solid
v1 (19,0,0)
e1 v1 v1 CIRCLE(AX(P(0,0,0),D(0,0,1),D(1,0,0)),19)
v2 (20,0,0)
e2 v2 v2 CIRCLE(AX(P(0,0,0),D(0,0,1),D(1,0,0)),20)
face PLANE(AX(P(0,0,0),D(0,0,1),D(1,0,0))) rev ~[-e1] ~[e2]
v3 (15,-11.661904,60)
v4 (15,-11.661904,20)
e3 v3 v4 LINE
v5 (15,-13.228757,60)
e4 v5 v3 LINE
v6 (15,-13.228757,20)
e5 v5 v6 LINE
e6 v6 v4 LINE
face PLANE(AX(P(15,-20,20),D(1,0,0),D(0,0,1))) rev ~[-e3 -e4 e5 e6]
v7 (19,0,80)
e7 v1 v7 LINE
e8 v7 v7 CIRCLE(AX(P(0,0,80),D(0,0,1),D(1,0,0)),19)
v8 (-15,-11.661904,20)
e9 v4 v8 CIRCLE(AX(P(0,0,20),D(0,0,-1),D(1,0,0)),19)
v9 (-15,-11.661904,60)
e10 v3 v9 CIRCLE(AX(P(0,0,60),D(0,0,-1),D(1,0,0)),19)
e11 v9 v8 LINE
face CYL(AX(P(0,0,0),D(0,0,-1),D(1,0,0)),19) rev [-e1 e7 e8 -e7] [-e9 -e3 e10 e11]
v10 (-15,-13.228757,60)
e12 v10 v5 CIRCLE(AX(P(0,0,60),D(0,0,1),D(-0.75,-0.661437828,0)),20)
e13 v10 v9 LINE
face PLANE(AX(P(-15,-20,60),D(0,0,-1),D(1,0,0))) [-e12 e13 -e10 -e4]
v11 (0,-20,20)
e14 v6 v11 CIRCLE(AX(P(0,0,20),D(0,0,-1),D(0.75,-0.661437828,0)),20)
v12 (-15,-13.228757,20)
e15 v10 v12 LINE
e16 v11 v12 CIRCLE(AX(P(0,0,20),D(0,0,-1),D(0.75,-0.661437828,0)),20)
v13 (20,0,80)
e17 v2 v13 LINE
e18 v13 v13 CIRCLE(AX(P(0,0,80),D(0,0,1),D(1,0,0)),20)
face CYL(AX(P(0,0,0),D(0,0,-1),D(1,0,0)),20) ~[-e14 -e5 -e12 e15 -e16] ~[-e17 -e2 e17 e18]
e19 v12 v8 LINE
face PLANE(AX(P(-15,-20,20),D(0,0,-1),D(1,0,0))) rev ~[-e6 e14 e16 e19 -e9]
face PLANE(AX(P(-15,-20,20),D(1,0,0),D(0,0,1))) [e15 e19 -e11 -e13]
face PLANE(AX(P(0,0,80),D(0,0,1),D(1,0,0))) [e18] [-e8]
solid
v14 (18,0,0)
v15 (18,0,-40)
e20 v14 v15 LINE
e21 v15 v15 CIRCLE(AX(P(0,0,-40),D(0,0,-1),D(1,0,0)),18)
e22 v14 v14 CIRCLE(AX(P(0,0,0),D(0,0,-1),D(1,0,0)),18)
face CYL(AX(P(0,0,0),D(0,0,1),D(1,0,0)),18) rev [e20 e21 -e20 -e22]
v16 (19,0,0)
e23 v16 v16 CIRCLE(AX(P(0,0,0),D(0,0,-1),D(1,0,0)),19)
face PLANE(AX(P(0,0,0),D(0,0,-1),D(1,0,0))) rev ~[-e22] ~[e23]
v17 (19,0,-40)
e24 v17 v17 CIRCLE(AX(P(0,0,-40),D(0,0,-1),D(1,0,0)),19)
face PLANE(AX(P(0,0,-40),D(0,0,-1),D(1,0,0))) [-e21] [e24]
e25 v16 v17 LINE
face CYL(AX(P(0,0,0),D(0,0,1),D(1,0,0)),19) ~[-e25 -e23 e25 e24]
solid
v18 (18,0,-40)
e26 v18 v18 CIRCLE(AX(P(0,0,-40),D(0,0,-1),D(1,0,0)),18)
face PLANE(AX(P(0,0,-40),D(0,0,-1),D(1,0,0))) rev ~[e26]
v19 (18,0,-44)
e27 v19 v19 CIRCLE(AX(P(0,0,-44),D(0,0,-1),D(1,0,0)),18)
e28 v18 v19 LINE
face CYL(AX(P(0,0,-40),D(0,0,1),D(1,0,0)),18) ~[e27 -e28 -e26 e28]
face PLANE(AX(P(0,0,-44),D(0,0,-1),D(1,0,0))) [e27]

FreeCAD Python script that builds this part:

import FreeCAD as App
import Part
import Sketcher

V = App.Vector


def add_polygon(sketch, points):
    """Adds a closed chain of lines whose ends are joined by coincident constraints."""
    first, n = sketch.GeometryCount, len(points)
    for a, b in zip(points, points[1:] + points[:1]):
        sketch.addGeometry(Part.LineSegment(App.Vector(*a, 0), App.Vector(*b, 0)), False)
    for i in range(n):
        sketch.addConstraint(Sketcher.Constraint("Coincident", first + i, 2, first + (i + 1) % n, 1))

doc = App.newDocument("Part")
body = doc.addObject("PartDesign::Body", "Body")

sketch1 = doc.addObject("Sketcher::SketchObject", "Sketch")
body.addObject(sketch1)
sketch1.AttachmentSupport = (doc.XY_Plane, [""])
sketch1.MapMode = "FlatFace"
sketch1.addGeometry([
    Part.Circle(V(0, 0, 0), V(0, 0, 1), 20),
    Part.Circle(V(0, 0, 0), V(0, 0, 1), 19),
], False)
sketch1.addConstraint([
    Sketcher.Constraint("Coincident", 0, 3, -1, 1),
    Sketcher.Constraint("Coincident", 1, 3, -1, 1),
    Sketcher.Constraint("Diameter", 0, 40.0),
    Sketcher.Constraint("Diameter", 1, 38.0),
])
pad1 = doc.addObject("PartDesign::Pad", "Pad")
body.addObject(pad1)
pad1.Profile = sketch1
pad1.Length = 80

sketch2 = doc.addObject("Sketcher::SketchObject", "Sketch001")
body.addObject(sketch2)
sketch2.AttachmentSupport = (doc.XZ_Plane, [""])
sketch2.MapMode = "FlatFace"
sketch2.AttachmentOffset = App.Placement(V(0, 0, 20), App.Rotation())
add_polygon(sketch2, [(-15, 60), (-15, 20), (15, 20), (15, 60)])
sketch2.addConstraint([
    Sketcher.Constraint("Vertical", 0),
    Sketcher.Constraint("Horizontal", 1),
    Sketcher.Constraint("Vertical", 2),
    Sketcher.Constraint("Horizontal", 3),
    Sketcher.Constraint("DistanceX", 1, 1, 1, 2, 30.0),
    Sketcher.Constraint("DistanceY", 0, 2, 0, 1, 40.0),
    Sketcher.Constraint("DistanceX", 0, 2, -1, 1, 15.0),
    Sketcher.Constraint("DistanceY", -1, 1, 0, 2, 20.0),
])
pocket1 = doc.addObject("PartDesign::Pocket", "Pocket")
body.addObject(pocket1)
pocket1.Profile = sketch2
pocket1.Length = 25

sketch3 = doc.addObject("Sketcher::SketchObject", "Sketch002")
body.addObject(sketch3)
sketch3.AttachmentSupport = (doc.XZ_Plane, [""])
sketch3.MapMode = "FlatFace"
sketch3.AttachmentOffset = App.Placement(V(0, 0, 20), App.Rotation())
add_polygon(sketch3, [(-12.5, 45), (-12.5, 10), (12.5, 10), (12.5, 45)])
sketch3.addConstraint([
    Sketcher.Constraint("Vertical", 0),
    Sketcher.Constraint("Horizontal", 1),
    Sketcher.Constraint("Vertical", 2),
    Sketcher.Constraint("Horizontal", 3),
    Sketcher.Constraint("DistanceX", 1, 1, 1, 2, 25.0),
    Sketcher.Constraint("DistanceY", 0, 2, 0, 1, 35.0),
    Sketcher.Constraint("DistanceY", -1, 1, 0, 2, 10.0),
    Sketcher.Constraint("DistanceX", 0, 2, -1, 1, 12.5),
])
pocket2 = doc.addObject("PartDesign::Pocket", "Pocket001")
body.addObject(pocket2)
pocket2.Profile = sketch3
pocket2.Length = 10
pocket2.Reversed = True
body2 = doc.addObject("PartDesign::Body", "Body001")

sketch4 = doc.addObject("Sketcher::SketchObject", "Sketch003")
body2.addObject(sketch4)
sketch4.AttachmentSupport = (doc.getObject("XY_Plane001"), [""])
sketch4.MapMode = "FlatFace"
sketch4.addGeometry([
    Part.Circle(V(0, 0, 0), V(0, 0, 1), 20),
    Part.Circle(V(0, 0, 0), V(0, 0, 1), 19),
], False)
sketch4.addConstraint([
    Sketcher.Constraint("Coincident", 0, 3, -1, 1),
    Sketcher.Constraint("Coincident", 1, 3, -1, 1),
    Sketcher.Constraint("Diameter", 0, 40.0),
    Sketcher.Constraint("Diameter", 1, 38.0),
])
pad2 = doc.addObject("PartDesign::Pad", "Pad001")
body2.addObject(pad2)
pad2.Profile = sketch4
pad2.Length = 60
body3 = doc.addObject("PartDesign::Body", "Body002")

sketch5 = doc.addObject("Sketcher::SketchObject", "Sketch004")
body3.addObject(sketch5)
sketch5.AttachmentSupport = (doc.getObject("XY_Plane002"), [""])
sketch5.MapMode = "FlatFace"
sketch5.addGeometry([
    Part.Circle(V(0, 0, 0), V(0, 0, 1), 19),
    Part.Circle(V(0, 0, 0), V(0, 0, 1), 18),
], False)
sketch5.addConstraint([
    Sketcher.Constraint("Coincident", 0, 3, -1, 1),
    Sketcher.Constraint("Coincident", 1, 3, -1, 1),
    Sketcher.Constraint("Diameter", 0, 38.0),
    Sketcher.Constraint("Diameter", 1, 36.0),
])
pad3 = doc.addObject("PartDesign::Pad", "Pad002")
body3.addObject(pad3)
pad3.Profile = sketch5
pad3.Length = 40
pad3.Reversed = True
body4 = doc.addObject("PartDesign::Body", "Body003")

sketch6 = doc.addObject("Sketcher::SketchObject", "Sketch005")
body4.addObject(sketch6)
sketch6.AttachmentSupport = (doc.getObject("XY_Plane003"), [""])
sketch6.MapMode = "FlatFace"
sketch6.AttachmentOffset = App.Placement(V(0, 0, -40), App.Rotation())
sketch6.addGeometry(Part.Circle(V(0, 0, 0), V(0, 0, 1), 18), False)
sketch6.addConstraint([
    Sketcher.Constraint("Coincident", 0, 3, -1, 1),
    Sketcher.Constraint("Diameter", 0, 36.0),
])
pad4 = doc.addObject("PartDesign::Pad", "Pad003")
body4.addObject(pad4)
pad4.Profile = sketch6
pad4.Length = 4
pad4.Reversed = True
body2.Visibility = False

doc.recompute()
